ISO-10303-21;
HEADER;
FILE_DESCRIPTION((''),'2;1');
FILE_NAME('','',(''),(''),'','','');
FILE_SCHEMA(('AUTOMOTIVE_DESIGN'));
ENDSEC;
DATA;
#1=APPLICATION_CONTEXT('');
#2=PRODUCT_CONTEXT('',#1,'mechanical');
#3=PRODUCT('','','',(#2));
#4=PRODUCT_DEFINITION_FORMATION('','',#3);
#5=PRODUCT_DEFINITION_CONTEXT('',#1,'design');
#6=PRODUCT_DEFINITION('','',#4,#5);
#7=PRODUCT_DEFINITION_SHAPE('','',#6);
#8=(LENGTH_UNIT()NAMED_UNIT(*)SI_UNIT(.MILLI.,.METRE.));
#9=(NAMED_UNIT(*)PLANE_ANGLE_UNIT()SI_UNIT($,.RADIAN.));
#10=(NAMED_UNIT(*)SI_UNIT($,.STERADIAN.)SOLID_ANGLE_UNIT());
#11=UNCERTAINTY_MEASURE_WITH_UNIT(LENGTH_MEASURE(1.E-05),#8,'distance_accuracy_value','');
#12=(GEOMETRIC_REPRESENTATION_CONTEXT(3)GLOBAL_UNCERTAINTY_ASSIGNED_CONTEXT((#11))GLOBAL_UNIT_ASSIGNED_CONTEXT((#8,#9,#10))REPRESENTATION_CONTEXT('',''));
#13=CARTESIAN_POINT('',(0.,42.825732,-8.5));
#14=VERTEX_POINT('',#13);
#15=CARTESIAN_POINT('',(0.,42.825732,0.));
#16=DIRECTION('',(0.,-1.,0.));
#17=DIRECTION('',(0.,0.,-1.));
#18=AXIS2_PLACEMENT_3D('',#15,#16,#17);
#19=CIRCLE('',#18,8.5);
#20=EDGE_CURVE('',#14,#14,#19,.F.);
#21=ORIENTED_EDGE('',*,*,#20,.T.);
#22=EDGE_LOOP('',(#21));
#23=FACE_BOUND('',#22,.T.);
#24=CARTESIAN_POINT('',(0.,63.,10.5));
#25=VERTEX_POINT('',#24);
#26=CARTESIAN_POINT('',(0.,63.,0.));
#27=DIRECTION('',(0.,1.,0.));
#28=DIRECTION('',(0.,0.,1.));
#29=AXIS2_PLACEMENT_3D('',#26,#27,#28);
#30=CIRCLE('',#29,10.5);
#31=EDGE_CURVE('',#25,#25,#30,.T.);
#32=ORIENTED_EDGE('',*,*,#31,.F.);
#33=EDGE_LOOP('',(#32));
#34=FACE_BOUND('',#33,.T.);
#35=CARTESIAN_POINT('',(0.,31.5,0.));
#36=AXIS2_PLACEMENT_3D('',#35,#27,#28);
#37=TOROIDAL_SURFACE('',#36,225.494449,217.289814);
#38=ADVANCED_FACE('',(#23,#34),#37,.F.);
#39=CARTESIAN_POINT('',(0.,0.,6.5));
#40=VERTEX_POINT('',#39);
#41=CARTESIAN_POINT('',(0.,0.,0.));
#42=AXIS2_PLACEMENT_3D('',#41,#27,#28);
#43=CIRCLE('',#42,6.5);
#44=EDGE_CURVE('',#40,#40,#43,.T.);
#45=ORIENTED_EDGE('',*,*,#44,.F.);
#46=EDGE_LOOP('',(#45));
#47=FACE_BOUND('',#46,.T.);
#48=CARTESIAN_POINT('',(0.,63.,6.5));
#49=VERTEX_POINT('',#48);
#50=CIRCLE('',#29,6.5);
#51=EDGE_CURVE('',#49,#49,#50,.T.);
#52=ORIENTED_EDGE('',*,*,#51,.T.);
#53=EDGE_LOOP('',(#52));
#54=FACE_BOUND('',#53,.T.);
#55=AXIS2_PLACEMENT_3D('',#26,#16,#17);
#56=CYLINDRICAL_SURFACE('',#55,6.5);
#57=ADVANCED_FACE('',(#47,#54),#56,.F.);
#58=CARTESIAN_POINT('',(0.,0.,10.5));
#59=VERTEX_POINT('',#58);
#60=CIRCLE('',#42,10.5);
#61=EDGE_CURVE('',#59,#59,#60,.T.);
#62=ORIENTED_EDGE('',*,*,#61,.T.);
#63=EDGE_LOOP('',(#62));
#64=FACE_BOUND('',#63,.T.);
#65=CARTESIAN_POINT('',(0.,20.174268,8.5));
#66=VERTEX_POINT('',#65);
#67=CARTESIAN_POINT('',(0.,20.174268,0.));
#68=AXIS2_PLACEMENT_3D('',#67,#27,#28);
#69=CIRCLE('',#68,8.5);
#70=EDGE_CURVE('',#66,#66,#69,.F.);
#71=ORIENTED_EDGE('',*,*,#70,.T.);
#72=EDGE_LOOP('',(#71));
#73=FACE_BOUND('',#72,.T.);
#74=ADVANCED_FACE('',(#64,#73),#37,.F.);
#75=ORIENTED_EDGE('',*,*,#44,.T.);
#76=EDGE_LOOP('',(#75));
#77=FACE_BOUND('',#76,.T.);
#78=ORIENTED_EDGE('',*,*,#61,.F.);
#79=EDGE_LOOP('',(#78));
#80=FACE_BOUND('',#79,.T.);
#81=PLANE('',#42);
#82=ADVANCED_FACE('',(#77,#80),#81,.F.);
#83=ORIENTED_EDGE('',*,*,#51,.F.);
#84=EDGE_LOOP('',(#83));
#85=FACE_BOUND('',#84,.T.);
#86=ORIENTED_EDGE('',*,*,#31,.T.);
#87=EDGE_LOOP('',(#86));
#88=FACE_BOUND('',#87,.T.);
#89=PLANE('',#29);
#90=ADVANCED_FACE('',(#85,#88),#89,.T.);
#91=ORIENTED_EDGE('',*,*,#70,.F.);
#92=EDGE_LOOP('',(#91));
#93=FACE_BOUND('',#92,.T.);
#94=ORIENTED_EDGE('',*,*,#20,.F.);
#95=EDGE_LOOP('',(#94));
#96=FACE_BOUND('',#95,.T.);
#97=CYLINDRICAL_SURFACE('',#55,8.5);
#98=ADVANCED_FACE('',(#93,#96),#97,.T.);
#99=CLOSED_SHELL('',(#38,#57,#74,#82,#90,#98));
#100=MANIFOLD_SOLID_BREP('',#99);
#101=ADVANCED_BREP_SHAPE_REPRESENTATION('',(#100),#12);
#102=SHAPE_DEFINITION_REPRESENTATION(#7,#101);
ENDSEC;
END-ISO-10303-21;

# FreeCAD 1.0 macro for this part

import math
import FreeCAD as App
import Part
import Sketcher

V = App.Vector
Q = App.Units.Quantity

doc = App.newDocument("Part")
body = doc.addObject("PartDesign::Body", "Body")

# Sketch on XZ plane
sketch1 = body.newObject("Sketcher::SketchObject", "Sketch")
sketch1.AttachmentSupport = (doc.getObject("XZ_Plane"), [""])
sketch1.MapMode = "FlatFace"
sketch1.addGeometry(Part.Circle(V(0, 0, 0), V(0, 0, 1), 8.5), False)
sketch1.addGeometry(Part.Circle(V(0, 0, 0), V(0, 0, 1), 6.5), False)
sketch1.addConstraint(Sketcher.Constraint("Coincident", 0, 3, -1, 1))
sketch1.addConstraint(Sketcher.Constraint("Coincident", 1, 3, -1, 1))
sketch1.addConstraint(Sketcher.Constraint("Diameter", 0, Q("17 mm")))
sketch1.addConstraint(Sketcher.Constraint("Diameter", 1, Q("13 mm")))
pad1 = body.newObject("PartDesign::Pad", "Pad")
pad1.Profile = sketch1
pad1.Length = 63
pad1.Reversed = True

# Sketch on XY plane
sketch2 = body.newObject("Sketcher::SketchObject", "Sketch001")
sketch2.AttachmentSupport = (doc.getObject("XY_Plane"), [""])
sketch2.MapMode = "FlatFace"
sketch2.addGeometry(Part.LineSegment(V(6.5, 63, 0), V(6.5, 0, 0)), False)
sketch2.addGeometry(Part.LineSegment(V(6.5, 0, 0), V(10.5, 0, 0)), False)
sketch2.addGeometry(Part.ArcOfCircle(Part.Circle(V(225.494449, 31.5, 0), V(0, 0, 1), 217.289814), math.radians(171.664592), math.radians(188.335408)), False)
sketch2.addGeometry(Part.LineSegment(V(10.5, 63, 0), V(6.5, 63, 0)), False)
sketch2.addConstraint(Sketcher.Constraint("Coincident", 0, 2, 1, 1))
sketch2.addConstraint(Sketcher.Constraint("Coincident", 1, 2, 2, 2))
sketch2.addConstraint(Sketcher.Constraint("Coincident", 2, 1, 3, 1))
sketch2.addConstraint(Sketcher.Constraint("Coincident", 3, 2, 0, 1))
sketch2.addConstraint(Sketcher.Constraint("Vertical", 0))
sketch2.addConstraint(Sketcher.Constraint("Horizontal", 1))
sketch2.addConstraint(Sketcher.Constraint("Horizontal", 3))
sketch2.addConstraint(Sketcher.Constraint("PointOnObject", 0, 2, -1))
sketch2.addConstraint(Sketcher.Constraint("Vertical", 1, 2, 2, 1))
sketch2.addConstraint(Sketcher.Constraint("DistanceX", 1, 1, 1, 2, Q("4 mm")))
sketch2.addConstraint(Sketcher.Constraint("DistanceY", 0, 2, 0, 1, Q("63 mm")))
sketch2.addConstraint(Sketcher.Constraint("DistanceX", -1, 1, 0, 2, Q("6.5 mm")))
sketch2.addConstraint(Sketcher.Constraint("Radius", 2, Q("217.289814 mm")))
revolution = body.newObject("PartDesign::Revolution", "Revolution")
revolution.Profile = sketch2
revolution.ReferenceAxis = (sketch2, ["V_Axis"])
revolution.Angle = 360

doc.recompute()
